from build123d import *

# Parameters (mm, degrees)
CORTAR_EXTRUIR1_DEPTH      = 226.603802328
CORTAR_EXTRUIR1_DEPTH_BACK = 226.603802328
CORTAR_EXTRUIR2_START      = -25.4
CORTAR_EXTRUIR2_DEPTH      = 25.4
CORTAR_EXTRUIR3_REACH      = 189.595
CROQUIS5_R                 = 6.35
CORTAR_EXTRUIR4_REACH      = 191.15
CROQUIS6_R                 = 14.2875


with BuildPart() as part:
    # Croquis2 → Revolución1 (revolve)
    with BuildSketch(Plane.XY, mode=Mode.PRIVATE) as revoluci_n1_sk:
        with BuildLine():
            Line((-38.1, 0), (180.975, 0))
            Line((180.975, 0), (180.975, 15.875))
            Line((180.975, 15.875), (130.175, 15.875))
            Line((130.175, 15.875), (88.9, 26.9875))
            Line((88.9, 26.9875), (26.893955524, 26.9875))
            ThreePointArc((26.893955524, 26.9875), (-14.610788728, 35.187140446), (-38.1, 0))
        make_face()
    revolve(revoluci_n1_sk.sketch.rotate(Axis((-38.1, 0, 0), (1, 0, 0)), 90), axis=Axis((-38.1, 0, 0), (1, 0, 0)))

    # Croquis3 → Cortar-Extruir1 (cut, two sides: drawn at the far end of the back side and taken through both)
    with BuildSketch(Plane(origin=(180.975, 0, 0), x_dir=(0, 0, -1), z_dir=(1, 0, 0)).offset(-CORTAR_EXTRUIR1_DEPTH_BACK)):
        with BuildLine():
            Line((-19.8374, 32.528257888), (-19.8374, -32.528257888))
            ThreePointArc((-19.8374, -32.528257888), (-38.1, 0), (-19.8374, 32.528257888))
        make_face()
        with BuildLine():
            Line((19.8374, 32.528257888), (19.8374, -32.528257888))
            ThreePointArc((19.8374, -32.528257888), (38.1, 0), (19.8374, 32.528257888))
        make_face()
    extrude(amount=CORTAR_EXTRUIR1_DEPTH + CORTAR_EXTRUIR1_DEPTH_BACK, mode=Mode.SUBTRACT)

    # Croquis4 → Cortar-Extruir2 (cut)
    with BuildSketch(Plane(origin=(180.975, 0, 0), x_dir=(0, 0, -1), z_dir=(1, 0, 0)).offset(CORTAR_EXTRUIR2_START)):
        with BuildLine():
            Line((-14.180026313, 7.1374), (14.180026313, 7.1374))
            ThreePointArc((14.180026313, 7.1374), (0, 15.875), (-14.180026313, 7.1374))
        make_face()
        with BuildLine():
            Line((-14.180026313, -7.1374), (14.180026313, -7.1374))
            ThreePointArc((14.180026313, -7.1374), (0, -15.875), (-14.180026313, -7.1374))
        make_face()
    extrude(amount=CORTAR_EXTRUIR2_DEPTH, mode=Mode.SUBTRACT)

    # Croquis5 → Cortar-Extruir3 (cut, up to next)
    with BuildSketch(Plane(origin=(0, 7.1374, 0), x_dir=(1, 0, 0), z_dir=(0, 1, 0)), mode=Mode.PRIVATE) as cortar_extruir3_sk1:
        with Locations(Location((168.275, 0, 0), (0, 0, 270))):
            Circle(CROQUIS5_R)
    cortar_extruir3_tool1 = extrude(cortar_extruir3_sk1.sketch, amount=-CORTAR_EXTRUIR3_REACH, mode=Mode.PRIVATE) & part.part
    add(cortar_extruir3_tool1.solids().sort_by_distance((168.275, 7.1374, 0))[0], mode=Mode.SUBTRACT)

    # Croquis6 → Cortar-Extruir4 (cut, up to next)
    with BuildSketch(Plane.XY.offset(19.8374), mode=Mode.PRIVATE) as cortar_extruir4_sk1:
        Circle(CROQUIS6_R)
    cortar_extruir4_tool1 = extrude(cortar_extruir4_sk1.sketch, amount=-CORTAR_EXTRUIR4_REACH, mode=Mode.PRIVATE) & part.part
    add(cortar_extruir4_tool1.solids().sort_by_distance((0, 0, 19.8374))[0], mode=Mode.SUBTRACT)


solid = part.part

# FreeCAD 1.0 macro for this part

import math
import FreeCAD as App
import Part
import Sketcher
from FreeCAD import Vector
Q = App.Units.Quantity

doc = App.newDocument("Part")
params = doc.addObject("Spreadsheet::Sheet", "Params")
for row, (alias, value) in enumerate([
    ("sketch1_radius", "1.5 in"),
    ("sketch1_width", "2 in"),
    ("sketch1_width2", "8.625 in"),
    ("sketch1_height", "0.625 in"),
    ("revolution_angle", "360 deg"),
    ("sketch2_radius", "1.5 in"),
    ("sketch3_radius", "0.625 in"),
    ("pocket2_length", "1 in"),
    ("sketch4_diameter", "0.5 in"),
    ("sketch5_diameter", "1.125 in"),
], start=1):
    params.set(f"A{row}", alias)
    params.set(f"B{row}", "=" + value)
    params.setAlias(f"B{row}", alias)

body = doc.addObject("PartDesign::Body", "Body")

sketch1 = body.newObject("Sketcher::SketchObject", "Sketch")
sketch1.AttachmentSupport = (doc.getObject("XY_Plane"), [""])
sketch1.MapMode = "FlatFace"
sketch1.addGeometry(Part.LineSegment(Vector(-38, 0, 0), Vector(181, 0, 0)), False)
sketch1.addGeometry(Part.LineSegment(Vector(181, 0, 0), Vector(181, 16, 0)), False)
sketch1.addGeometry(Part.LineSegment(Vector(181, 16, 0), Vector(130, 16, 0)), False)
sketch1.addGeometry(Part.LineSegment(Vector(130, 16, 0), Vector(89, 27, 0)), False)
sketch1.addGeometry(Part.LineSegment(Vector(89, 27, 0), Vector(27, 27, 0)), False)
sketch1.addGeometry(Part.ArcOfCircle(Part.Circle(Vector(0, 0, 0), Vector(0, 0, 1), 38), math.radians(45), math.radians(180)), False)
sketch1.addConstraint(Sketcher.Constraint("Coincident", 0, 2, 1, 1))
sketch1.addConstraint(Sketcher.Constraint("Coincident", 1, 2, 2, 1))
sketch1.addConstraint(Sketcher.Constraint("Coincident", 2, 2, 3, 1))
sketch1.addConstraint(Sketcher.Constraint("Coincident", 3, 2, 4, 1))
sketch1.addConstraint(Sketcher.Constraint("Coincident", 4, 2, 5, 1))
sketch1.addConstraint(Sketcher.Constraint("Coincident", 5, 2, 0, 1))
sketch1.addConstraint(Sketcher.Constraint("Horizontal", 0))
sketch1.addConstraint(Sketcher.Constraint("Vertical", 1))
sketch1.addConstraint(Sketcher.Constraint("Horizontal", 2))
sketch1.addConstraint(Sketcher.Constraint("Horizontal", 4))
sketch1.addConstraint(Sketcher.Constraint("Coincident", 5, 3, -1, 1))
sketch1.addConstraint(Sketcher.Constraint("PointOnObject", 0, 2, -1))
sketch1.addConstraint(Sketcher.Constraint("Radius", 5, Q("1.5 in")))
sketch1.addConstraint(Sketcher.Constraint("DistanceX", 2, 2, 2, 1, Q("2 in")))
sketch1.addConstraint(Sketcher.Constraint("DistanceX", 5, 2, 3, 2, Q("5 in")))
sketch1.addConstraint(Sketcher.Constraint("DistanceX", 0, 1, 0, 2, Q("8.625 in")))
sketch1.addConstraint(Sketcher.Constraint("DistanceY", 1, 1, 1, 2, Q("0.625 in")))
sketch1.addConstraint(Sketcher.Constraint("DistanceY", -1, 1, 3, 2, Q("1.0625 in")))
sketch1.setExpression("Constraints[12]", "Params.sketch1_radius")
sketch1.setExpression("Constraints[13]", "Params.sketch1_width")
sketch1.setExpression("Constraints[15]", "Params.sketch1_width2")
sketch1.setExpression("Constraints[16]", "Params.sketch1_height")
revolution = body.newObject("PartDesign::Revolution", "Revolution")
revolution.Profile = sketch1
revolution.ReferenceAxis = (sketch1, ["H_Axis"])
revolution.setExpression("Angle", "Params.revolution_angle")

sketch2 = body.newObject("Sketcher::SketchObject", "Sketch001")
sketch2.AttachmentSupport = (doc.getObject("YZ_Plane"), [""])
sketch2.MapMode = "FlatFace"
sketch2.AttachmentOffset = App.Placement(Vector(0, 0, 7.125 * 25.4), App.Rotation())
sketch2.addGeometry(Part.LineSegment(Vector(-33, 20, 0), Vector(33, 20, 0)), False)
sketch2.addGeometry(Part.ArcOfCircle(Part.Circle(Vector(0, 0, 0), Vector(0, 0, 1), 38), math.radians(31), math.radians(149)), False)
sketch2.addGeometry(Part.LineSegment(Vector(33, -20, 0), Vector(-33, -20, 0)), False)
sketch2.addGeometry(Part.ArcOfCircle(Part.Circle(Vector(0, 0, 0), Vector(0, 0, 1), 38), math.radians(-149), math.radians(-31)), False)
sketch2.addConstraint(Sketcher.Constraint("Coincident", 0, 1, 1, 2))
sketch2.addConstraint(Sketcher.Constraint("Coincident", 1, 1, 0, 2))
sketch2.addConstraint(Sketcher.Constraint("Coincident", 2, 1, 3, 2))
sketch2.addConstraint(Sketcher.Constraint("Coincident", 3, 1, 2, 2))
sketch2.addConstraint(Sketcher.Constraint("Horizontal", 0))
sketch2.addConstraint(Sketcher.Constraint("Horizontal", 2))
sketch2.addConstraint(Sketcher.Constraint("Coincident", 1, 3, -1, 1))
sketch2.addConstraint(Sketcher.Constraint("Coincident", 3, 3, -1, 1))
sketch2.addConstraint(Sketcher.Constraint("Equal", 1, 3))
sketch2.addConstraint(Sketcher.Constraint("Vertical", 1, 1, 2, 1))
sketch2.addConstraint(Sketcher.Constraint("Radius", 1, Q("1.5 in")))
sketch2.addConstraint(Sketcher.Constraint("DistanceY", -1, 1, 0, 1, Q("0.781 in")))
sketch2.setExpression("Constraints[10]", "Params.sketch2_radius")
pocket1 = body.newObject("PartDesign::Pocket", "Pocket")
pocket1.Profile = sketch2
pocket1.Type = "ThroughAll"
pocket1.Midplane = True

sketch3 = body.newObject("Sketcher::SketchObject", "Sketch002")
sketch3.AttachmentSupport = (doc.getObject("YZ_Plane"), [""])
sketch3.MapMode = "FlatFace"
sketch3.AttachmentOffset = App.Placement(Vector(0, 0, 6.125 * 25.4), App.Rotation())
sketch3.addGeometry(Part.LineSegment(Vector(7, 14, 0), Vector(7, -14, 0)), False)
sketch3.addGeometry(Part.ArcOfCircle(Part.Circle(Vector(0, 0, 0), Vector(0, 0, 1), 16), math.radians(-63), math.radians(63)), False)
sketch3.addGeometry(Part.LineSegment(Vector(-7, -14, 0), Vector(-7, 14, 0)), False)
sketch3.addGeometry(Part.ArcOfCircle(Part.Circle(Vector(0, 0, 0), Vector(0, 0, 1), 16), math.radians(117), math.radians(243)), False)
sketch3.addConstraint(Sketcher.Constraint("Coincident", 0, 1, 1, 2))
sketch3.addConstraint(Sketcher.Constraint("Coincident", 1, 1, 0, 2))
sketch3.addConstraint(Sketcher.Constraint("Coincident", 2, 1, 3, 2))
sketch3.addConstraint(Sketcher.Constraint("Coincident", 3, 1, 2, 2))
sketch3.addConstraint(Sketcher.Constraint("Vertical", 0))
sketch3.addConstraint(Sketcher.Constraint("Vertical", 2))
sketch3.addConstraint(Sketcher.Constraint("Coincident", 1, 3, -1, 1))
sketch3.addConstraint(Sketcher.Constraint("Coincident", 3, 3, -1, 1))
sketch3.addConstraint(Sketcher.Constraint("Equal", 1, 3))
sketch3.addConstraint(Sketcher.Constraint("Horizontal", 1, 1, 2, 1))
sketch3.addConstraint(Sketcher.Constraint("Radius", 1, Q("0.625 in")))
sketch3.addConstraint(Sketcher.Constraint("DistanceX", -1, 1, 0, 1, Q("0.281 in")))
sketch3.setExpression("Constraints[10]", "Params.sketch3_radius")
pocket2 = body.newObject("PartDesign::Pocket", "Pocket001")
pocket2.Profile = sketch3
pocket2.setExpression("Length", "Params.pocket2_length")
pocket2.Reversed = True

sketch4 = body.newObject("Sketcher::SketchObject", "Sketch003")
sketch4.AttachmentSupport = (doc.getObject("XZ_Plane"), [""])
sketch4.MapMode = "FlatFace"
sketch4.AttachmentOffset = App.Placement(Vector(0, 0, -0.281 * 25.4), App.Rotation())
sketch4.addGeometry(Part.Circle(Vector(168, 0, 0), Vector(0, 0, 1), 6), False)
sketch4.addConstraint(Sketcher.Constraint("PointOnObject", 0, 3, -1))
sketch4.addConstraint(Sketcher.Constraint("Diameter", 0, Q("0.5 in")))
sketch4.addConstraint(Sketcher.Constraint("DistanceX", -1, 1, 0, 3, Q("6.625 in")))
sketch4.setExpression("Constraints[1]", "Params.sketch4_diameter")
pocket3 = body.newObject("PartDesign::Pocket", "Pocket002")
pocket3.Profile = sketch4
pocket3.Type = "UpToFirst"
pocket3.Reversed = True

sketch5 = body.newObject("Sketcher::SketchObject", "Sketch004")
sketch5.AttachmentSupport = (doc.getObject("XY_Plane"), [""])
sketch5.MapMode = "FlatFace"
sketch5.AttachmentOffset = App.Placement(Vector(0, 0, 0.781 * 25.4), App.Rotation())
sketch5.addGeometry(Part.Circle(Vector(0, 0, 0), Vector(0, 0, 1), 14), False)
sketch5.addConstraint(Sketcher.Constraint("Coincident", 0, 3, -1, 1))
sketch5.addConstraint(Sketcher.Constraint("Diameter", 0, Q("1.125 in")))
sketch5.setExpression("Constraints[1]", "Params.sketch5_diameter")
pocket4 = body.newObject("PartDesign::Pocket", "Pocket003")
pocket4.Profile = sketch5
pocket4.Type = "UpToFirst"

doc.recompute()
